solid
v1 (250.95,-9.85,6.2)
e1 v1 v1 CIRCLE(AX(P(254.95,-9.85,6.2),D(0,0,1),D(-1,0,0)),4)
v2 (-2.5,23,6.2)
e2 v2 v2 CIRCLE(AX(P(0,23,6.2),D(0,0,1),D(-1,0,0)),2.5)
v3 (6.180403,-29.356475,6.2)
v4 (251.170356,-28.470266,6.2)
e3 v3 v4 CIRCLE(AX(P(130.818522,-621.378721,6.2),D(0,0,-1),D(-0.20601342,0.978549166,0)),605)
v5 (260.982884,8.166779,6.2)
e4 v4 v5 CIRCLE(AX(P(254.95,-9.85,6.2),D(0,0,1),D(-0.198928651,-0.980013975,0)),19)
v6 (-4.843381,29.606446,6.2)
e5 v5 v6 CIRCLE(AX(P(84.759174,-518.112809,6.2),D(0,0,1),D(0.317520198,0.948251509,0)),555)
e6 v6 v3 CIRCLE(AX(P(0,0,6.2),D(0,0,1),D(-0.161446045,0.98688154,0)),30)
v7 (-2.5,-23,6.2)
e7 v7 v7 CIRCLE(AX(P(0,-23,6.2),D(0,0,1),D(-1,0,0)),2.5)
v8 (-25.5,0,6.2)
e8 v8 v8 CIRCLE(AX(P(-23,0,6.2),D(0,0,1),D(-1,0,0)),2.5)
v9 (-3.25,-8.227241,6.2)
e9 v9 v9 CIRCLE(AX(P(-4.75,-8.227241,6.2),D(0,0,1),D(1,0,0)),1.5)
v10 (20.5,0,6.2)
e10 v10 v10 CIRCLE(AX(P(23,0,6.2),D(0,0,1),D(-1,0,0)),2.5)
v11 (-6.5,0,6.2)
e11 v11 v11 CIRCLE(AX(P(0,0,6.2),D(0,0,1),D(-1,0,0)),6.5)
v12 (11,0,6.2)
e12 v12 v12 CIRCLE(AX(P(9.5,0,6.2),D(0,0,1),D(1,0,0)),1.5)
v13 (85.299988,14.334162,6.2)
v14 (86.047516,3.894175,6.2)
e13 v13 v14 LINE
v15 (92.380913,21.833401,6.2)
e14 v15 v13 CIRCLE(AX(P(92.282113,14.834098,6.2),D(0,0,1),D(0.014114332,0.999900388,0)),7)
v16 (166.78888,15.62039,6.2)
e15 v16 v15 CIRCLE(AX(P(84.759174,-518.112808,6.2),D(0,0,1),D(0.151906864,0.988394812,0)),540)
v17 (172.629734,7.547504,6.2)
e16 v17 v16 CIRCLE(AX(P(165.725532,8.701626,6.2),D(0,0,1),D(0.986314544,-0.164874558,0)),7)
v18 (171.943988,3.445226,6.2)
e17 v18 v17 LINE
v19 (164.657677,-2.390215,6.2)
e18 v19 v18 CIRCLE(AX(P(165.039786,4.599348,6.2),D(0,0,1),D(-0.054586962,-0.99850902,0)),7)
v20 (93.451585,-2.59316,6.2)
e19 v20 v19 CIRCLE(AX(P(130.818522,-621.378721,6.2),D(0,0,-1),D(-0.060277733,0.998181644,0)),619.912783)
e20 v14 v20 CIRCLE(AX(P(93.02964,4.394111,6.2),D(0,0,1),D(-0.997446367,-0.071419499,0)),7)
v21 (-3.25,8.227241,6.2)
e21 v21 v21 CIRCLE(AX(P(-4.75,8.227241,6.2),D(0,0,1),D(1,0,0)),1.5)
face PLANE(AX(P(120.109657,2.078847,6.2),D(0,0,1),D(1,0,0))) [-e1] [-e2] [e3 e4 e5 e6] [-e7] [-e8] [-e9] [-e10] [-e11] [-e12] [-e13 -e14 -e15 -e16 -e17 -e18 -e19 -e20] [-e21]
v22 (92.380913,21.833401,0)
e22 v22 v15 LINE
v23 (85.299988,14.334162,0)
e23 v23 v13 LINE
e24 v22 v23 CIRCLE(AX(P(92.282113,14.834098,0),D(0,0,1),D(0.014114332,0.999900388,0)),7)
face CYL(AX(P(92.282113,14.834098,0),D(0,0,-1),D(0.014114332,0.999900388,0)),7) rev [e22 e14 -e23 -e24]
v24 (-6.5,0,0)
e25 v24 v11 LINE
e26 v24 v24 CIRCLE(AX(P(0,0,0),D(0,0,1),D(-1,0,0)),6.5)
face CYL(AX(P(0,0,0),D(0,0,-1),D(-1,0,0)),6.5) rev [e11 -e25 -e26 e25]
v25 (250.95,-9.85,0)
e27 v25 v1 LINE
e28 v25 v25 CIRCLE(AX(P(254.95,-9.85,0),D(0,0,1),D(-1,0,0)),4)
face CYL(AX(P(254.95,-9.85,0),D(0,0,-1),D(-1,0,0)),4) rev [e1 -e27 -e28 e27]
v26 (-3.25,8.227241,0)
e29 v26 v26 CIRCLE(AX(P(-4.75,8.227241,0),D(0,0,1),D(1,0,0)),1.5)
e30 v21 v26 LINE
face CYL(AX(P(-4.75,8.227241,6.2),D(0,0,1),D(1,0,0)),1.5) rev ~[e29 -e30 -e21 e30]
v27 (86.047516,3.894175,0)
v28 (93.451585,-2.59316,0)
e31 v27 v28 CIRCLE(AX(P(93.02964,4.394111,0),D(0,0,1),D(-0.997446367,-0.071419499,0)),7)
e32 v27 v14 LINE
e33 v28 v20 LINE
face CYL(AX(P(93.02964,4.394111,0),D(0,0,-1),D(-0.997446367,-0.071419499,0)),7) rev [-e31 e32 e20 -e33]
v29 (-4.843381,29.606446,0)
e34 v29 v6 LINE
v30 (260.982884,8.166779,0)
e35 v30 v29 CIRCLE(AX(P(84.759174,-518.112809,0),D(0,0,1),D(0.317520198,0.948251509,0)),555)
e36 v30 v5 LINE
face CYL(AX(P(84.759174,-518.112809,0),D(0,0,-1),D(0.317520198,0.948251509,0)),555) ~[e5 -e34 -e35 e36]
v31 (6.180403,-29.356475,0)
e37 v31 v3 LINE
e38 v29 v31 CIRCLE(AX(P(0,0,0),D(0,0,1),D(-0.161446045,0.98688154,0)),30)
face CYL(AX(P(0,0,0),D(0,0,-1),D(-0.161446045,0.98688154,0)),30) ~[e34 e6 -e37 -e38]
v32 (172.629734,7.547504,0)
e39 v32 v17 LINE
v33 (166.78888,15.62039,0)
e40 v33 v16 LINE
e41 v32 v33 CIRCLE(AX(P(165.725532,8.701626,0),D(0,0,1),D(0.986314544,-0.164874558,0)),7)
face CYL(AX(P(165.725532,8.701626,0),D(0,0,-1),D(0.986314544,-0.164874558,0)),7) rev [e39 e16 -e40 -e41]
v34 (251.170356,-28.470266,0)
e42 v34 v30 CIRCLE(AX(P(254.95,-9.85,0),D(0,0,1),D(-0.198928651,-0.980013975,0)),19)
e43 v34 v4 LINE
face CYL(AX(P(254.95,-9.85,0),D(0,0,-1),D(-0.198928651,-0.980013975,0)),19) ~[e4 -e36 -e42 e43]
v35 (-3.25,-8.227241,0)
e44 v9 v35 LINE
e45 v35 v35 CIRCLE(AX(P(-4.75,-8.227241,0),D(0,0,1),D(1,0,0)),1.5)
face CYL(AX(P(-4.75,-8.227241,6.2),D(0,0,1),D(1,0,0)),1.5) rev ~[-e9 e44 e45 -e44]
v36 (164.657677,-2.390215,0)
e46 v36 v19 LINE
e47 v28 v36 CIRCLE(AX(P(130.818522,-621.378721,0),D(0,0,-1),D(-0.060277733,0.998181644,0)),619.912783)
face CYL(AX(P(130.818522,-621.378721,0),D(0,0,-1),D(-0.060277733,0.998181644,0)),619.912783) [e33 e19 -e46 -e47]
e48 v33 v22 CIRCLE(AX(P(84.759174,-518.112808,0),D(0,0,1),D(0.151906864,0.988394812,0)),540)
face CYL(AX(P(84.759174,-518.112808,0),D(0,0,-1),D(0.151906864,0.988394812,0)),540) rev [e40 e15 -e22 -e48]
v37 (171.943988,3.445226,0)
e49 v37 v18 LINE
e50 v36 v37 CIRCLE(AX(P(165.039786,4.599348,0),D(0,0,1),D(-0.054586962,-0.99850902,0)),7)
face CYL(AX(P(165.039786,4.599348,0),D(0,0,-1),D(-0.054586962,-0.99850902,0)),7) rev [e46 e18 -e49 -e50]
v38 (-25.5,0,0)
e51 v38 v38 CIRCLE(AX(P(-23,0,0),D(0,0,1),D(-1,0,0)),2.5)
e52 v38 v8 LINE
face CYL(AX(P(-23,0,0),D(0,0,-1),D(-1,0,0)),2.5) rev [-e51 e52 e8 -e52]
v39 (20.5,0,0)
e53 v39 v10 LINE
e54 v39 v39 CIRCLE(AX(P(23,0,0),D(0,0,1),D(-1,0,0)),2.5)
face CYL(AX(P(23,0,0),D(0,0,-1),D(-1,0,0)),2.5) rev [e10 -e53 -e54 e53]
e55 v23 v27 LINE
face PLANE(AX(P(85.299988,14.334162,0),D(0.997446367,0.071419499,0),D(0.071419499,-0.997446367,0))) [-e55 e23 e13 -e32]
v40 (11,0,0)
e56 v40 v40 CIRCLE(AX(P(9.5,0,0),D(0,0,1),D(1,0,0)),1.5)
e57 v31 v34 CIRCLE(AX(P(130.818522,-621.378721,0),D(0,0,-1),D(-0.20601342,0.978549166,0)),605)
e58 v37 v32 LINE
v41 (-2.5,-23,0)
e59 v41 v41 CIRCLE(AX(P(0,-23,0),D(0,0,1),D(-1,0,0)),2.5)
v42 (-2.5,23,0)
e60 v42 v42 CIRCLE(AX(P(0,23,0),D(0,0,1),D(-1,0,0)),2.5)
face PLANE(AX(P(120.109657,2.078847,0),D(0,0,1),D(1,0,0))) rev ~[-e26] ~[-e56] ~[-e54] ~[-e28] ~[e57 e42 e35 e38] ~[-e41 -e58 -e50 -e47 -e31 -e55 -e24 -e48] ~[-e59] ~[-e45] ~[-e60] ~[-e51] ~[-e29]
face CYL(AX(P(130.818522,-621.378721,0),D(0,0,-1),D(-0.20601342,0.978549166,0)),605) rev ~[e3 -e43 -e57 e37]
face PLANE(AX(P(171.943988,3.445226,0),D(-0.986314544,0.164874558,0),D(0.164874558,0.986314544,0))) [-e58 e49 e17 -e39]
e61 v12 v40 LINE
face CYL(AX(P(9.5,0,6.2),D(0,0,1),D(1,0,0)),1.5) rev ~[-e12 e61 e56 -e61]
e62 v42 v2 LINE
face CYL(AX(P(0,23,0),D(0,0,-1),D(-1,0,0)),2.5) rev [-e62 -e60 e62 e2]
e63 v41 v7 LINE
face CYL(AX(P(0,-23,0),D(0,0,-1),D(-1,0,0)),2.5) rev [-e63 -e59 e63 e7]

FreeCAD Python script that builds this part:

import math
import FreeCAD as App
import Part
import Sketcher

V = App.Vector

doc = App.newDocument("Part")
body = doc.addObject("PartDesign::Body", "Body")

# Sketch on XY plane
sketch1 = body.newObject("Sketcher::SketchObject", "Sketch")
sketch1.AttachmentSupport = (doc.getObject("XY_Plane"), [""])
sketch1.MapMode = "FlatFace"
sketch1.addGeometry(Part.ArcOfCircle(Part.Circle(V(0, 0, 0), V(0, 0, 1), 30), math.radians(99), math.radians(282)), False)
sketch1.addGeometry(Part.ArcOfCircle(Part.Circle(V(130.8, -621.4, 0), V(0, 0, 1), 605), math.radians(79), math.radians(102)), False)
sketch1.addGeometry(Part.ArcOfCircle(Part.Circle(V(254.9, -9.8, 0), V(0, 0, 1), 19), math.radians(-101), math.radians(71)), False)
sketch1.addGeometry(Part.ArcOfCircle(Part.Circle(V(84.8, -518.1, 0), V(0, 0, 1), 555), math.radians(71), math.radians(99)), False)
sketch1.addGeometry(Part.Circle(V(0, -23, 0), V(0, 0, 1), 2.5), False)
sketch1.addGeometry(Part.Circle(V(254.9, -9.8, 0), V(0, 0, 1), 4), False)
sketch1.addGeometry(Part.Circle(V(-23, 0, 0), V(0, 0, 1), 2.5), False)
sketch1.addGeometry(Part.Circle(V(0, 0, 0), V(0, 0, 1), 6.5), False)
sketch1.addGeometry(Part.Circle(V(23, 0, 0), V(0, 0, 1), 2.5), False)
sketch1.addGeometry(Part.Circle(V(0, 23, 0), V(0, 0, 1), 2.5), False)
sketch1.addGeometry(Part.LineSegment(V(86, 3.9, 0), V(85.3, 14.3, 0)), False)
sketch1.addGeometry(Part.ArcOfCircle(Part.Circle(V(92.3, 14.8, 0), V(0, 0, 1), 7), math.radians(89), math.radians(184)), False)
sketch1.addGeometry(Part.ArcOfCircle(Part.Circle(V(84.8, -518.1, 0), V(0, 0, 1), 540), math.radians(81.26), math.radians(89.19)), False)
sketch1.addGeometry(Part.ArcOfCircle(Part.Circle(V(165.7, 8.7, 0), V(0, 0, 1), 7), math.radians(-9), math.radians(81)), False)
sketch1.addGeometry(Part.LineSegment(V(172.6, 7.5, 0), V(171.9, 3.4, 0)), False)
sketch1.addGeometry(Part.ArcOfCircle(Part.Circle(V(165, 4.6, 0), V(0, 0, 1), 7), math.radians(-93), math.radians(-9)), False)
sketch1.addGeometry(Part.ArcOfCircle(Part.Circle(V(130.8, -621.4, 0), V(0, 0, 1), 619.9), math.radians(86.87), math.radians(93.46)), False)
sketch1.addGeometry(Part.ArcOfCircle(Part.Circle(V(93, 4.4, 0), V(0, 0, 1), 7), math.radians(-176), math.radians(-87)), False)
sketch1.addConstraint(Sketcher.Constraint("Tangent", 0, 2, 1, 2))
sketch1.addConstraint(Sketcher.Constraint("Tangent", 1, 1, 2, 1))
sketch1.addConstraint(Sketcher.Constraint("Tangent", 2, 2, 3, 1))
sketch1.addConstraint(Sketcher.Constraint("Tangent", 3, 2, 0, 1))
sketch1.addConstraint(Sketcher.Constraint("Tangent", 10, 2, 11, 2))
sketch1.addConstraint(Sketcher.Constraint("Tangent", 11, 1, 12, 2))
sketch1.addConstraint(Sketcher.Constraint("Tangent", 12, 1, 13, 2))
sketch1.addConstraint(Sketcher.Constraint("Tangent", 13, 1, 14, 1))
sketch1.addConstraint(Sketcher.Constraint("Tangent", 14, 2, 15, 2))
sketch1.addConstraint(Sketcher.Constraint("Tangent", 15, 1, 16, 1))
sketch1.addConstraint(Sketcher.Constraint("Tangent", 16, 2, 17, 2))
sketch1.addConstraint(Sketcher.Constraint("Tangent", 17, 1, 10, 1))
sketch1.addConstraint(Sketcher.Constraint("Coincident", 0, 3, -1, 1))
sketch1.addConstraint(Sketcher.Constraint("Coincident", 7, 3, -1, 1))
sketch1.addConstraint(Sketcher.Constraint("Coincident", 5, 3, 2, 3))
sketch1.addConstraint(Sketcher.Constraint("Coincident", 12, 3, 3, 3))
sketch1.addConstraint(Sketcher.Constraint("Coincident", 16, 3, 1, 3))
sketch1.addConstraint(Sketcher.Constraint("Equal", 4, 6))
sketch1.addConstraint(Sketcher.Constraint("Equal", 6, 8))
sketch1.addConstraint(Sketcher.Constraint("Equal", 8, 9))
sketch1.addConstraint(Sketcher.Constraint("Equal", 11, 13))
sketch1.addConstraint(Sketcher.Constraint("Equal", 13, 15))
sketch1.addConstraint(Sketcher.Constraint("Equal", 15, 17))
sketch1.addConstraint(Sketcher.Constraint("Symmetric", 6, 3, 8, 3, -1, 1))
sketch1.addConstraint(Sketcher.Constraint("Symmetric", 4, 3, 9, 3, -1, 1))
sketch1.addConstraint(Sketcher.Constraint("PointOnObject", 4, 3, -2))
sketch1.addConstraint(Sketcher.Constraint("PointOnObject", 6, 3, -1))
sketch1.addConstraint(Sketcher.Constraint("Diameter", 4, 5.0))
sketch1.addConstraint(Sketcher.Constraint("Diameter", 5, 8.0))
sketch1.addConstraint(Sketcher.Constraint("Diameter", 7, 13.0))
sketch1.addConstraint(Sketcher.Constraint("Radius", 0, 30.0))
sketch1.addConstraint(Sketcher.Constraint("Radius", 1, 605.0))
sketch1.addConstraint(Sketcher.Constraint("Radius", 2, 19.0))
sketch1.addConstraint(Sketcher.Constraint("Radius", 3, 555.0))
sketch1.addConstraint(Sketcher.Constraint("Radius", 11, 7.0))
sketch1.addConstraint(Sketcher.Constraint("Radius", 12, 540.0))
sketch1.addConstraint(Sketcher.Constraint("DistanceY", 4, 3, -1, 1, 23.0))
sketch1.addConstraint(Sketcher.Constraint("DistanceX", 6, 3, -1, 1, 23.0))
sketch1.addConstraint(Sketcher.Constraint("DistanceX", -1, 1, 2, 3, 254.95))
sketch1.addConstraint(Sketcher.Constraint("DistanceY", 2, 3, -1, 1, 9.85))
sketch1.addConstraint(Sketcher.Constraint("Radius", 16, 619.912783))
sketch1.addConstraint(Sketcher.Constraint("Distance", 14, 4.159199))
sketch1.addConstraint(Sketcher.Constraint("DistanceY", -1, 1, 11, 3, 14.834098))
sketch1.addConstraint(Sketcher.Constraint("DistanceX", 13, 3, 13, 1, 6.904202))
sketch1.addConstraint(Sketcher.Constraint("DistanceX", -1, 1, 17, 3, 93.02964))
pad1 = body.newObject("PartDesign::Pad", "Pad")
pad1.Profile = sketch1
pad1.Length = 6.2

# Sketch on XY plane
sketch2 = body.newObject("Sketcher::SketchObject", "Sketch001")
sketch2.AttachmentSupport = (doc.getObject("XY_Plane"), [""])
sketch2.MapMode = "FlatFace"
sketch2.AttachmentOffset = App.Placement(V(0, 0, 6.2), App.Rotation())
sketch2.addGeometry(Part.Circle(V(-4.8, -8.2, 0), V(0, 0, 1), 1.5), False)
sketch2.addConstraint(Sketcher.Constraint("Diameter", 0, 3.0))
sketch2.addConstraint(Sketcher.Constraint("DistanceX", 0, 3, -1, 1, 4.75))
sketch2.addConstraint(Sketcher.Constraint("DistanceY", 0, 3, -1, 1, 8.227241))
pocket1 = body.newObject("PartDesign::Pocket", "Pocket")
pocket1.Profile = sketch2
pocket1.Type = "UpToFirst"

# Sketch on XY plane
sketch3 = body.newObject("Sketcher::SketchObject", "Sketch002")
sketch3.AttachmentSupport = (doc.getObject("XY_Plane"), [""])
sketch3.MapMode = "FlatFace"
sketch3.AttachmentOffset = App.Placement(V(0, 0, 6.2), App.Rotation())
sketch3.addGeometry(Part.Circle(V(-4.8, 8.2, 0), V(0, 0, 1), 1.5), False)
sketch3.addConstraint(Sketcher.Constraint("Diameter", 0, 3.0))
sketch3.addConstraint(Sketcher.Constraint("DistanceX", 0, 3, -1, 1, 4.75))
sketch3.addConstraint(Sketcher.Constraint("DistanceY", -1, 1, 0, 3, 8.227241))
pocket2 = body.newObject("PartDesign::Pocket", "Pocket001")
pocket2.Profile = sketch3
pocket2.Type = "UpToFirst"

# Sketch on XY plane
sketch4 = body.newObject("Sketcher::SketchObject", "Sketch003")
sketch4.AttachmentSupport = (doc.getObject("XY_Plane"), [""])
sketch4.MapMode = "FlatFace"
sketch4.AttachmentOffset = App.Placement(V(0, 0, 6.2), App.Rotation())
sketch4.addGeometry(Part.Circle(V(9.5, 0, 0), V(0, 0, 1), 1.5), False)
sketch4.addConstraint(Sketcher.Constraint("PointOnObject", 0, 3, -1))
sketch4.addConstraint(Sketcher.Constraint("Diameter", 0, 3.0))
sketch4.addConstraint(Sketcher.Constraint("DistanceX", -1, 1, 0, 3, 9.5))
pocket3 = body.newObject("PartDesign::Pocket", "Pocket002")
pocket3.Profile = sketch4
pocket3.Type = "UpToFirst"

doc.recompute()
